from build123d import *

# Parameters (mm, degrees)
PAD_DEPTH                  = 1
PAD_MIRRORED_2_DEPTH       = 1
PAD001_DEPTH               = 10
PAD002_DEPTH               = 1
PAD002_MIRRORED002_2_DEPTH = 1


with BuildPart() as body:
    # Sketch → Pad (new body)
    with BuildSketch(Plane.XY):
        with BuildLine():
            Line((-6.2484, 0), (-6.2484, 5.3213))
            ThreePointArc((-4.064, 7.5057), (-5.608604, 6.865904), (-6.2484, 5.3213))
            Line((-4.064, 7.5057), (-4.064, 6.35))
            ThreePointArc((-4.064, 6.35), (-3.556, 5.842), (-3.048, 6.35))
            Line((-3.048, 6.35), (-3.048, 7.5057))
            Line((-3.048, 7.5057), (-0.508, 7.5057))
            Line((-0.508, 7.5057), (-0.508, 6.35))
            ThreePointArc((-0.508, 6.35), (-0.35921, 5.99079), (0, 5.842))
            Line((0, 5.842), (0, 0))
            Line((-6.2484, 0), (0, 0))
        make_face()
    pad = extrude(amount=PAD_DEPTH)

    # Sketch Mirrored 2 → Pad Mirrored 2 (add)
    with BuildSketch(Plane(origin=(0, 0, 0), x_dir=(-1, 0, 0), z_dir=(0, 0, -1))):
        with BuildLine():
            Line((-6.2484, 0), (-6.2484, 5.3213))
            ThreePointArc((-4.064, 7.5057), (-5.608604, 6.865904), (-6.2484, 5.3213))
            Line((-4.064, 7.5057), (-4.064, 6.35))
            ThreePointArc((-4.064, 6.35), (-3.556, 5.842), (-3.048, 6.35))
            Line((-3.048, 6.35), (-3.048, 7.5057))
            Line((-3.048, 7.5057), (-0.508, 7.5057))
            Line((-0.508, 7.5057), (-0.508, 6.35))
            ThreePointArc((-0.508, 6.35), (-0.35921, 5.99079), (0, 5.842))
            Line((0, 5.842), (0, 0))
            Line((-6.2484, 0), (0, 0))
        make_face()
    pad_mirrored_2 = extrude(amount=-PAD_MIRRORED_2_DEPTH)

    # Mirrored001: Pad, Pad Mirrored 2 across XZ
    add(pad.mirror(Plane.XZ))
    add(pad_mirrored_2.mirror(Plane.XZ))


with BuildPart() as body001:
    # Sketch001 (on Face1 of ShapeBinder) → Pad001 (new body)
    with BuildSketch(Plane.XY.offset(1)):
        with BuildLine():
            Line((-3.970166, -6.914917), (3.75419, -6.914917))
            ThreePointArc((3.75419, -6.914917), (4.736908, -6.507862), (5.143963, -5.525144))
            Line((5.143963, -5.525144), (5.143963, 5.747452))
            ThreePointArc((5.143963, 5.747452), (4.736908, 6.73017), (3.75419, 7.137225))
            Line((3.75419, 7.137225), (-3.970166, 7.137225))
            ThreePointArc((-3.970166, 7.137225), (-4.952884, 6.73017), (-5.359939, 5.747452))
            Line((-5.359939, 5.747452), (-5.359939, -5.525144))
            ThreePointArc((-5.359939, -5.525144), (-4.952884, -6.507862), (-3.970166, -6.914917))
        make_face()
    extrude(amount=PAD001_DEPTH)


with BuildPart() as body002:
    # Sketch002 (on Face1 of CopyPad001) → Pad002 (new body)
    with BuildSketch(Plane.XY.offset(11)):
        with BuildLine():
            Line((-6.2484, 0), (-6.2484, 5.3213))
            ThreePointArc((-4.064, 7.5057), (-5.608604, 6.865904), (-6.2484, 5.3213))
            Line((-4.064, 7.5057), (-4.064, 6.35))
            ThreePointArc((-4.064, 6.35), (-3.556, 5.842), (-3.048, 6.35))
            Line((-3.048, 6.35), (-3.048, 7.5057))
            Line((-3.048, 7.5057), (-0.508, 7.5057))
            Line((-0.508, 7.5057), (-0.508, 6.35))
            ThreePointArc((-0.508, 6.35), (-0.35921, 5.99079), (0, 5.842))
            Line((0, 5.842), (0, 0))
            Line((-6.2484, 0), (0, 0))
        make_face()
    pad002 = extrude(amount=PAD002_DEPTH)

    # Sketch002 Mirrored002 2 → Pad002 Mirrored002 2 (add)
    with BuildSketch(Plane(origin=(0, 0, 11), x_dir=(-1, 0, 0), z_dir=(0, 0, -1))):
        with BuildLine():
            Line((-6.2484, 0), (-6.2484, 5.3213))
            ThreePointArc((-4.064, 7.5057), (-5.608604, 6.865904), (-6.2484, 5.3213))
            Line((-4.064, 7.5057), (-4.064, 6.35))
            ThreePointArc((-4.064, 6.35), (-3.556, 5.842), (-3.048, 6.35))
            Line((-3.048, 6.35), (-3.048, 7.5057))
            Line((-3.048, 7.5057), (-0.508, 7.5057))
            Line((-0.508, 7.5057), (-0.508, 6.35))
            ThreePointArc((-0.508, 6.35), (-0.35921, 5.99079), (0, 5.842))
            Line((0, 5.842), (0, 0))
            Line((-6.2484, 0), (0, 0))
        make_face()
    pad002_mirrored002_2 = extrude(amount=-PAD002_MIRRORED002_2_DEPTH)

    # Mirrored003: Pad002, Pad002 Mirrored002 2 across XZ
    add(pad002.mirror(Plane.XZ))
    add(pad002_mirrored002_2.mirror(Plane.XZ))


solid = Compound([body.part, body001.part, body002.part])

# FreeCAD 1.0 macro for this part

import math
import FreeCAD as App
import Part
import Sketcher
from FreeCAD import Vector
Q = App.Units.Quantity

doc = App.newDocument("Part")
body = doc.addObject("PartDesign::Body", "Body")

sketch1 = body.newObject("Sketcher::SketchObject", "Sketch")
sketch1.AttachmentSupport = (doc.getObject("XY_Plane"), [""])
sketch1.MapMode = "FlatFace"
sketch1.addGeometry([
    Part.LineSegment(Vector(-6.2484, 5.3213, 0), Vector(-6.2484, 0, 0)),
    Part.LineSegment(Vector(-6.2484, 0, 0), Vector(0, 0, 0)),
    Part.LineSegment(Vector(0, 0, 0), Vector(0, 5.842, 0)),
    Part.ArcOfCircle(Part.Circle(Vector(0.000001, 6.350001, 0), Vector(0, 0, 1), 0.508001), math.radians(-179.999906), math.radians(-90.000094)),
    Part.LineSegment(Vector(-0.508, 6.35, 0), Vector(-0.508, 7.5057, 0)),
    Part.LineSegment(Vector(-0.508, 7.5057, 0), Vector(-3.048, 7.5057, 0)),
    Part.LineSegment(Vector(-3.048, 7.5057, 0), Vector(-3.048, 6.35, 0)),
    Part.ArcOfCircle(Part.Circle(Vector(-3.556, 6.35, 0), Vector(0, 0, 1), 0.508), math.radians(180), math.radians(360)),
    Part.LineSegment(Vector(-4.064, 6.35, 0), Vector(-4.064, 7.5057, 0)),
    Part.ArcOfCircle(Part.Circle(Vector(-4.064, 5.3213, 0), Vector(0, 0, 1), 2.1844), math.radians(90.000005), math.radians(179.999995)),
], False)
sketch1.addConstraint([
    Sketcher.Constraint("Coincident", 0, 2, 1, 1),
    Sketcher.Constraint("Coincident", 1, 2, 2, 1),
    Sketcher.Constraint("Coincident", 2, 2, 3, 2),
    Sketcher.Constraint("Tangent", 3, 1, 4, 1),
    Sketcher.Constraint("Coincident", 4, 2, 5, 1),
    Sketcher.Constraint("Coincident", 5, 2, 6, 1),
    Sketcher.Constraint("Tangent", 6, 2, 7, 2),
    Sketcher.Constraint("Tangent", 7, 1, 8, 1),
    Sketcher.Constraint("Coincident", 8, 2, 9, 1),
    Sketcher.Constraint("Tangent", 9, 2, 0, 1),
    Sketcher.Constraint("Vertical", 0),
    Sketcher.Constraint("Horizontal", 1),
    Sketcher.Constraint("Vertical", 2),
    Sketcher.Constraint("Vertical", 4),
    Sketcher.Constraint("Horizontal", 5),
    Sketcher.Constraint("Vertical", 6),
    Sketcher.Constraint("Vertical", 8),
    Sketcher.Constraint("Coincident", 1, 2, -1, 1),
    Sketcher.Constraint("Equal", 3, 7),
    Sketcher.Constraint("PointOnObject", 3, 3, -2),
    Sketcher.Constraint("Horizontal", 3, 3, 7, 3),
    Sketcher.Constraint("Horizontal", 5, 2, 8, 2),
    Sketcher.Constraint("Vertical", 9, 3, 7, 1),
    Sketcher.Constraint("Radius", 3, Q("0.02 in")),
    Sketcher.Constraint("DistanceX", 5, 2, 5, 1, Q("0.1 in")),
    Sketcher.Constraint("Radius", 9, Q("0.086 in")),
    Sketcher.Constraint("DistanceY", 2, 1, 2, 2, Q("0.23 in")),
    Sketcher.Constraint("DistanceY", 0, 2, 0, 1, Q("0.2095 in")),
])
pad1 = body.newObject("PartDesign::Pad", "Pad")
pad1.Profile = sketch1
pad1.Length = 1

sketch2 = body.newObject("Sketcher::SketchObject", "Sketch001")
sketch2.AttachmentSupport = (doc.getObject("XY_Plane"), [""])
sketch2.MapMode = "FlatFace"
sketch2.addGeometry([
    Part.LineSegment(Vector(6.2484, 5.3213, 0), Vector(6.2484, 0, 0)),
    Part.LineSegment(Vector(6.2484, 0, 0), Vector(0, 0, 0)),
    Part.LineSegment(Vector(0, 0, 0), Vector(0, 5.842, 0)),
    Part.ArcOfCircle(Part.Circle(Vector(-0.000001, 6.350001, 0), Vector(0, 0, 1), 0.508001), math.radians(-89.999906), math.radians(-0.000094)),
    Part.LineSegment(Vector(0.508, 6.35, 0), Vector(0.508, 7.5057, 0)),
    Part.LineSegment(Vector(0.508, 7.5057, 0), Vector(3.048, 7.5057, 0)),
    Part.LineSegment(Vector(3.048, 7.5057, 0), Vector(3.048, 6.35, 0)),
    Part.ArcOfCircle(Part.Circle(Vector(3.556, 6.35, 0), Vector(0, 0, 1), 0.508), math.radians(180), math.radians(360)),
    Part.LineSegment(Vector(4.064, 6.35, 0), Vector(4.064, 7.5057, 0)),
    Part.ArcOfCircle(Part.Circle(Vector(4.064, 5.3213, 0), Vector(0, 0, 1), 2.1844), math.radians(0.000005), math.radians(89.999995)),
], False)
sketch2.addConstraint([
    Sketcher.Constraint("Coincident", 0, 2, 1, 1),
    Sketcher.Constraint("Coincident", 1, 2, 2, 1),
    Sketcher.Constraint("Coincident", 2, 2, 3, 1),
    Sketcher.Constraint("Tangent", 3, 2, 4, 1),
    Sketcher.Constraint("Coincident", 4, 2, 5, 1),
    Sketcher.Constraint("Coincident", 5, 2, 6, 1),
    Sketcher.Constraint("Tangent", 6, 2, 7, 1),
    Sketcher.Constraint("Tangent", 7, 2, 8, 1),
    Sketcher.Constraint("Coincident", 8, 2, 9, 2),
    Sketcher.Constraint("Tangent", 9, 1, 0, 1),
    Sketcher.Constraint("Vertical", 0),
    Sketcher.Constraint("Horizontal", 1),
    Sketcher.Constraint("Vertical", 2),
    Sketcher.Constraint("Vertical", 4),
    Sketcher.Constraint("Horizontal", 5),
    Sketcher.Constraint("Vertical", 6),
    Sketcher.Constraint("Vertical", 8),
    Sketcher.Constraint("Coincident", 1, 2, -1, 1),
    Sketcher.Constraint("Equal", 3, 7),
    Sketcher.Constraint("PointOnObject", 3, 3, -2),
    Sketcher.Constraint("Horizontal", 3, 3, 7, 3),
    Sketcher.Constraint("Horizontal", 5, 2, 8, 2),
    Sketcher.Constraint("Vertical", 9, 3, 7, 2),
    Sketcher.Constraint("Radius", 3, Q("0.02 in")),
    Sketcher.Constraint("DistanceX", 5, 1, 5, 2, Q("0.1 in")),
    Sketcher.Constraint("Radius", 9, Q("0.086 in")),
    Sketcher.Constraint("DistanceY", 2, 1, 2, 2, Q("0.23 in")),
    Sketcher.Constraint("DistanceY", 0, 2, 0, 1, Q("0.2095 in")),
])
pad2 = body.newObject("PartDesign::Pad", "Pad001")
pad2.Profile = sketch2
pad2.Length = 1
doc.recompute()

mirrored = body.newObject("PartDesign::Mirrored", "Mirrored")
mirrored.Originals = [pad1, pad2]
mirrored.MirrorPlane = (doc.getObject("XZ_Plane"), [""])
body.Tip = mirrored
body2 = doc.addObject("PartDesign::Body", "Body001")

sketch3 = body2.newObject("Sketcher::SketchObject", "Sketch002")
sketch3.AttachmentSupport = (doc.getObject("XY_Plane001"), [""])
sketch3.MapMode = "FlatFace"
sketch3.AttachmentOffset = App.Placement(Vector(0, 0, 1), App.Rotation())
sketch3.addGeometry([
    Part.LineSegment(Vector(-3.970166, -6.914917, 0), Vector(3.75419, -6.914917, 0)),
    Part.ArcOfCircle(Part.Circle(Vector(3.75419, -5.525144, 0), Vector(0, 0, 1), 1.389773), math.radians(-90.000012), math.radians(0.000012)),
    Part.LineSegment(Vector(5.143963, -5.525144, 0), Vector(5.143963, 5.747452, 0)),
    Part.ArcOfCircle(Part.Circle(Vector(3.75419, 5.747452, 0), Vector(0, 0, 1), 1.389773), math.radians(-0.000012), math.radians(90.000012)),
    Part.LineSegment(Vector(3.75419, 7.137225, 0), Vector(-3.970166, 7.137225, 0)),
    Part.ArcOfCircle(Part.Circle(Vector(-3.970166, 5.747452, 0), Vector(0, 0, 1), 1.389773), math.radians(89.999988), math.radians(180.000012)),
    Part.LineSegment(Vector(-5.359939, 5.747452, 0), Vector(-5.359939, -5.525144, 0)),
    Part.ArcOfCircle(Part.Circle(Vector(-3.970166, -5.525144, 0), Vector(0, 0, 1), 1.389773), math.radians(179.999988), math.radians(270.000012)),
], False)
sketch3.addConstraint([
    Sketcher.Constraint("Tangent", 0, 2, 1, 1),
    Sketcher.Constraint("Tangent", 1, 2, 2, 1),
    Sketcher.Constraint("Tangent", 2, 2, 3, 1),
    Sketcher.Constraint("Tangent", 3, 2, 4, 1),
    Sketcher.Constraint("Tangent", 4, 2, 5, 1),
    Sketcher.Constraint("Tangent", 5, 2, 6, 1),
    Sketcher.Constraint("Tangent", 6, 2, 7, 1),
    Sketcher.Constraint("Tangent", 7, 2, 0, 1),
    Sketcher.Constraint("Horizontal", 0),
    Sketcher.Constraint("Vertical", 2),
    Sketcher.Constraint("Horizontal", 4),
    Sketcher.Constraint("Vertical", 6),
    Sketcher.Constraint("Equal", 1, 3),
    Sketcher.Constraint("Equal", 3, 5),
    Sketcher.Constraint("Equal", 5, 7),
    Sketcher.Constraint("Radius", 1, 1.389773),
    Sketcher.Constraint("DistanceX", 5, 2, 2, 2, 10.503902),
    Sketcher.Constraint("DistanceY", 2, 1, 2, 2, 11.272596),
    Sketcher.Constraint("DistanceX", -1, 1, 1, 3, 3.75419),
    Sketcher.Constraint("DistanceY", 1, 3, -1, 1, 5.525144),
])
pad3 = body2.newObject("PartDesign::Pad", "Pad002")
pad3.Profile = sketch3
pad3.Length = 10
body3 = doc.addObject("PartDesign::Body", "Body002")

sketch4 = body3.newObject("Sketcher::SketchObject", "Sketch003")
sketch4.AttachmentSupport = (doc.getObject("XY_Plane002"), [""])
sketch4.MapMode = "FlatFace"
sketch4.AttachmentOffset = App.Placement(Vector(0, 0, 11), App.Rotation())
sketch4.addGeometry([
    Part.LineSegment(Vector(-6.2484, 5.3213, 0), Vector(-6.2484, 0, 0)),
    Part.LineSegment(Vector(-6.2484, 0, 0), Vector(0, 0, 0)),
    Part.LineSegment(Vector(0, 0, 0), Vector(0, 5.842, 0)),
    Part.ArcOfCircle(Part.Circle(Vector(0.000001, 6.350001, 0), Vector(0, 0, 1), 0.508001), math.radians(-179.999906), math.radians(-90.000094)),
    Part.LineSegment(Vector(-0.508, 6.35, 0), Vector(-0.508, 7.5057, 0)),
    Part.LineSegment(Vector(-0.508, 7.5057, 0), Vector(-3.048, 7.5057, 0)),
    Part.LineSegment(Vector(-3.048, 7.5057, 0), Vector(-3.048, 6.35, 0)),
    Part.ArcOfCircle(Part.Circle(Vector(-3.556, 6.35, 0), Vector(0, 0, 1), 0.508), math.radians(180), math.radians(360)),
    Part.LineSegment(Vector(-4.064, 6.35, 0), Vector(-4.064, 7.5057, 0)),
    Part.ArcOfCircle(Part.Circle(Vector(-4.064, 5.3213, 0), Vector(0, 0, 1), 2.1844), math.radians(90.000005), math.radians(179.999995)),
], False)
sketch4.addConstraint([
    Sketcher.Constraint("Coincident", 0, 2, 1, 1),
    Sketcher.Constraint("Coincident", 1, 2, 2, 1),
    Sketcher.Constraint("Coincident", 2, 2, 3, 2),
    Sketcher.Constraint("Tangent", 3, 1, 4, 1),
    Sketcher.Constraint("Coincident", 4, 2, 5, 1),
    Sketcher.Constraint("Coincident", 5, 2, 6, 1),
    Sketcher.Constraint("Tangent", 6, 2, 7, 2),
    Sketcher.Constraint("Tangent", 7, 1, 8, 1),
    Sketcher.Constraint("Coincident", 8, 2, 9, 1),
    Sketcher.Constraint("Tangent", 9, 2, 0, 1),
    Sketcher.Constraint("Vertical", 0),
    Sketcher.Constraint("Horizontal", 1),
    Sketcher.Constraint("Vertical", 2),
    Sketcher.Constraint("Vertical", 4),
    Sketcher.Constraint("Horizontal", 5),
    Sketcher.Constraint("Vertical", 6),
    Sketcher.Constraint("Vertical", 8),
    Sketcher.Constraint("Coincident", 1, 2, -1, 1),
    Sketcher.Constraint("Equal", 3, 7),
    Sketcher.Constraint("PointOnObject", 3, 3, -2),
    Sketcher.Constraint("Horizontal", 3, 3, 7, 3),
    Sketcher.Constraint("Horizontal", 5, 2, 8, 2),
    Sketcher.Constraint("Vertical", 9, 3, 7, 1),
    Sketcher.Constraint("Radius", 3, Q("0.02 in")),
    Sketcher.Constraint("DistanceX", 5, 2, 5, 1, Q("0.1 in")),
    Sketcher.Constraint("Radius", 9, Q("0.086 in")),
    Sketcher.Constraint("DistanceY", 2, 1, 2, 2, Q("0.23 in")),
    Sketcher.Constraint("DistanceY", 0, 2, 0, 1, Q("0.2095 in")),
])
pad4 = body3.newObject("PartDesign::Pad", "Pad003")
pad4.Profile = sketch4
pad4.Length = 1

sketch5 = body3.newObject("Sketcher::SketchObject", "Sketch004")
sketch5.AttachmentSupport = (doc.getObject("XY_Plane002"), [""])
sketch5.MapMode = "FlatFace"
sketch5.AttachmentOffset = App.Placement(Vector(0, 0, 11), App.Rotation())
sketch5.addGeometry([
    Part.LineSegment(Vector(6.2484, 5.3213, 0), Vector(6.2484, 0, 0)),
    Part.LineSegment(Vector(6.2484, 0, 0), Vector(0, 0, 0)),
    Part.LineSegment(Vector(0, 0, 0), Vector(0, 5.842, 0)),
    Part.ArcOfCircle(Part.Circle(Vector(-0.000001, 6.350001, 0), Vector(0, 0, 1), 0.508001), math.radians(-89.999906), math.radians(-0.000094)),
    Part.LineSegment(Vector(0.508, 6.35, 0), Vector(0.508, 7.5057, 0)),
    Part.LineSegment(Vector(0.508, 7.5057, 0), Vector(3.048, 7.5057, 0)),
    Part.LineSegment(Vector(3.048, 7.5057, 0), Vector(3.048, 6.35, 0)),
    Part.ArcOfCircle(Part.Circle(Vector(3.556, 6.35, 0), Vector(0, 0, 1), 0.508), math.radians(180), math.radians(360)),
    Part.LineSegment(Vector(4.064, 6.35, 0), Vector(4.064, 7.5057, 0)),
    Part.ArcOfCircle(Part.Circle(Vector(4.064, 5.3213, 0), Vector(0, 0, 1), 2.1844), math.radians(0.000005), math.radians(89.999995)),
], False)
sketch5.addConstraint([
    Sketcher.Constraint("Coincident", 0, 2, 1, 1),
    Sketcher.Constraint("Coincident", 1, 2, 2, 1),
    Sketcher.Constraint("Coincident", 2, 2, 3, 1),
    Sketcher.Constraint("Tangent", 3, 2, 4, 1),
    Sketcher.Constraint("Coincident", 4, 2, 5, 1),
    Sketcher.Constraint("Coincident", 5, 2, 6, 1),
    Sketcher.Constraint("Tangent", 6, 2, 7, 1),
    Sketcher.Constraint("Tangent", 7, 2, 8, 1),
    Sketcher.Constraint("Coincident", 8, 2, 9, 2),
    Sketcher.Constraint("Tangent", 9, 1, 0, 1),
    Sketcher.Constraint("Vertical", 0),
    Sketcher.Constraint("Horizontal", 1),
    Sketcher.Constraint("Vertical", 2),
    Sketcher.Constraint("Vertical", 4),
    Sketcher.Constraint("Horizontal", 5),
    Sketcher.Constraint("Vertical", 6),
    Sketcher.Constraint("Vertical", 8),
    Sketcher.Constraint("Coincident", 1, 2, -1, 1),
    Sketcher.Constraint("Equal", 3, 7),
    Sketcher.Constraint("PointOnObject", 3, 3, -2),
    Sketcher.Constraint("Horizontal", 3, 3, 7, 3),
    Sketcher.Constraint("Horizontal", 5, 2, 8, 2),
    Sketcher.Constraint("Vertical", 9, 3, 7, 2),
    Sketcher.Constraint("Radius", 3, Q("0.02 in")),
    Sketcher.Constraint("DistanceX", 5, 1, 5, 2, Q("0.1 in")),
    Sketcher.Constraint("Radius", 9, Q("0.086 in")),
    Sketcher.Constraint("DistanceY", 2, 1, 2, 2, Q("0.23 in")),
    Sketcher.Constraint("DistanceY", 0, 2, 0, 1, Q("0.2095 in")),
])
pad5 = body3.newObject("PartDesign::Pad", "Pad004")
pad5.Profile = sketch5
pad5.Length = 1
doc.recompute()

mirrored2 = body3.newObject("PartDesign::Mirrored", "Mirrored001")
mirrored2.Originals = [pad4, pad5]
mirrored2.MirrorPlane = (doc.getObject("XZ_Plane002"), [""])
body3.Tip = mirrored2

doc.recompute()
